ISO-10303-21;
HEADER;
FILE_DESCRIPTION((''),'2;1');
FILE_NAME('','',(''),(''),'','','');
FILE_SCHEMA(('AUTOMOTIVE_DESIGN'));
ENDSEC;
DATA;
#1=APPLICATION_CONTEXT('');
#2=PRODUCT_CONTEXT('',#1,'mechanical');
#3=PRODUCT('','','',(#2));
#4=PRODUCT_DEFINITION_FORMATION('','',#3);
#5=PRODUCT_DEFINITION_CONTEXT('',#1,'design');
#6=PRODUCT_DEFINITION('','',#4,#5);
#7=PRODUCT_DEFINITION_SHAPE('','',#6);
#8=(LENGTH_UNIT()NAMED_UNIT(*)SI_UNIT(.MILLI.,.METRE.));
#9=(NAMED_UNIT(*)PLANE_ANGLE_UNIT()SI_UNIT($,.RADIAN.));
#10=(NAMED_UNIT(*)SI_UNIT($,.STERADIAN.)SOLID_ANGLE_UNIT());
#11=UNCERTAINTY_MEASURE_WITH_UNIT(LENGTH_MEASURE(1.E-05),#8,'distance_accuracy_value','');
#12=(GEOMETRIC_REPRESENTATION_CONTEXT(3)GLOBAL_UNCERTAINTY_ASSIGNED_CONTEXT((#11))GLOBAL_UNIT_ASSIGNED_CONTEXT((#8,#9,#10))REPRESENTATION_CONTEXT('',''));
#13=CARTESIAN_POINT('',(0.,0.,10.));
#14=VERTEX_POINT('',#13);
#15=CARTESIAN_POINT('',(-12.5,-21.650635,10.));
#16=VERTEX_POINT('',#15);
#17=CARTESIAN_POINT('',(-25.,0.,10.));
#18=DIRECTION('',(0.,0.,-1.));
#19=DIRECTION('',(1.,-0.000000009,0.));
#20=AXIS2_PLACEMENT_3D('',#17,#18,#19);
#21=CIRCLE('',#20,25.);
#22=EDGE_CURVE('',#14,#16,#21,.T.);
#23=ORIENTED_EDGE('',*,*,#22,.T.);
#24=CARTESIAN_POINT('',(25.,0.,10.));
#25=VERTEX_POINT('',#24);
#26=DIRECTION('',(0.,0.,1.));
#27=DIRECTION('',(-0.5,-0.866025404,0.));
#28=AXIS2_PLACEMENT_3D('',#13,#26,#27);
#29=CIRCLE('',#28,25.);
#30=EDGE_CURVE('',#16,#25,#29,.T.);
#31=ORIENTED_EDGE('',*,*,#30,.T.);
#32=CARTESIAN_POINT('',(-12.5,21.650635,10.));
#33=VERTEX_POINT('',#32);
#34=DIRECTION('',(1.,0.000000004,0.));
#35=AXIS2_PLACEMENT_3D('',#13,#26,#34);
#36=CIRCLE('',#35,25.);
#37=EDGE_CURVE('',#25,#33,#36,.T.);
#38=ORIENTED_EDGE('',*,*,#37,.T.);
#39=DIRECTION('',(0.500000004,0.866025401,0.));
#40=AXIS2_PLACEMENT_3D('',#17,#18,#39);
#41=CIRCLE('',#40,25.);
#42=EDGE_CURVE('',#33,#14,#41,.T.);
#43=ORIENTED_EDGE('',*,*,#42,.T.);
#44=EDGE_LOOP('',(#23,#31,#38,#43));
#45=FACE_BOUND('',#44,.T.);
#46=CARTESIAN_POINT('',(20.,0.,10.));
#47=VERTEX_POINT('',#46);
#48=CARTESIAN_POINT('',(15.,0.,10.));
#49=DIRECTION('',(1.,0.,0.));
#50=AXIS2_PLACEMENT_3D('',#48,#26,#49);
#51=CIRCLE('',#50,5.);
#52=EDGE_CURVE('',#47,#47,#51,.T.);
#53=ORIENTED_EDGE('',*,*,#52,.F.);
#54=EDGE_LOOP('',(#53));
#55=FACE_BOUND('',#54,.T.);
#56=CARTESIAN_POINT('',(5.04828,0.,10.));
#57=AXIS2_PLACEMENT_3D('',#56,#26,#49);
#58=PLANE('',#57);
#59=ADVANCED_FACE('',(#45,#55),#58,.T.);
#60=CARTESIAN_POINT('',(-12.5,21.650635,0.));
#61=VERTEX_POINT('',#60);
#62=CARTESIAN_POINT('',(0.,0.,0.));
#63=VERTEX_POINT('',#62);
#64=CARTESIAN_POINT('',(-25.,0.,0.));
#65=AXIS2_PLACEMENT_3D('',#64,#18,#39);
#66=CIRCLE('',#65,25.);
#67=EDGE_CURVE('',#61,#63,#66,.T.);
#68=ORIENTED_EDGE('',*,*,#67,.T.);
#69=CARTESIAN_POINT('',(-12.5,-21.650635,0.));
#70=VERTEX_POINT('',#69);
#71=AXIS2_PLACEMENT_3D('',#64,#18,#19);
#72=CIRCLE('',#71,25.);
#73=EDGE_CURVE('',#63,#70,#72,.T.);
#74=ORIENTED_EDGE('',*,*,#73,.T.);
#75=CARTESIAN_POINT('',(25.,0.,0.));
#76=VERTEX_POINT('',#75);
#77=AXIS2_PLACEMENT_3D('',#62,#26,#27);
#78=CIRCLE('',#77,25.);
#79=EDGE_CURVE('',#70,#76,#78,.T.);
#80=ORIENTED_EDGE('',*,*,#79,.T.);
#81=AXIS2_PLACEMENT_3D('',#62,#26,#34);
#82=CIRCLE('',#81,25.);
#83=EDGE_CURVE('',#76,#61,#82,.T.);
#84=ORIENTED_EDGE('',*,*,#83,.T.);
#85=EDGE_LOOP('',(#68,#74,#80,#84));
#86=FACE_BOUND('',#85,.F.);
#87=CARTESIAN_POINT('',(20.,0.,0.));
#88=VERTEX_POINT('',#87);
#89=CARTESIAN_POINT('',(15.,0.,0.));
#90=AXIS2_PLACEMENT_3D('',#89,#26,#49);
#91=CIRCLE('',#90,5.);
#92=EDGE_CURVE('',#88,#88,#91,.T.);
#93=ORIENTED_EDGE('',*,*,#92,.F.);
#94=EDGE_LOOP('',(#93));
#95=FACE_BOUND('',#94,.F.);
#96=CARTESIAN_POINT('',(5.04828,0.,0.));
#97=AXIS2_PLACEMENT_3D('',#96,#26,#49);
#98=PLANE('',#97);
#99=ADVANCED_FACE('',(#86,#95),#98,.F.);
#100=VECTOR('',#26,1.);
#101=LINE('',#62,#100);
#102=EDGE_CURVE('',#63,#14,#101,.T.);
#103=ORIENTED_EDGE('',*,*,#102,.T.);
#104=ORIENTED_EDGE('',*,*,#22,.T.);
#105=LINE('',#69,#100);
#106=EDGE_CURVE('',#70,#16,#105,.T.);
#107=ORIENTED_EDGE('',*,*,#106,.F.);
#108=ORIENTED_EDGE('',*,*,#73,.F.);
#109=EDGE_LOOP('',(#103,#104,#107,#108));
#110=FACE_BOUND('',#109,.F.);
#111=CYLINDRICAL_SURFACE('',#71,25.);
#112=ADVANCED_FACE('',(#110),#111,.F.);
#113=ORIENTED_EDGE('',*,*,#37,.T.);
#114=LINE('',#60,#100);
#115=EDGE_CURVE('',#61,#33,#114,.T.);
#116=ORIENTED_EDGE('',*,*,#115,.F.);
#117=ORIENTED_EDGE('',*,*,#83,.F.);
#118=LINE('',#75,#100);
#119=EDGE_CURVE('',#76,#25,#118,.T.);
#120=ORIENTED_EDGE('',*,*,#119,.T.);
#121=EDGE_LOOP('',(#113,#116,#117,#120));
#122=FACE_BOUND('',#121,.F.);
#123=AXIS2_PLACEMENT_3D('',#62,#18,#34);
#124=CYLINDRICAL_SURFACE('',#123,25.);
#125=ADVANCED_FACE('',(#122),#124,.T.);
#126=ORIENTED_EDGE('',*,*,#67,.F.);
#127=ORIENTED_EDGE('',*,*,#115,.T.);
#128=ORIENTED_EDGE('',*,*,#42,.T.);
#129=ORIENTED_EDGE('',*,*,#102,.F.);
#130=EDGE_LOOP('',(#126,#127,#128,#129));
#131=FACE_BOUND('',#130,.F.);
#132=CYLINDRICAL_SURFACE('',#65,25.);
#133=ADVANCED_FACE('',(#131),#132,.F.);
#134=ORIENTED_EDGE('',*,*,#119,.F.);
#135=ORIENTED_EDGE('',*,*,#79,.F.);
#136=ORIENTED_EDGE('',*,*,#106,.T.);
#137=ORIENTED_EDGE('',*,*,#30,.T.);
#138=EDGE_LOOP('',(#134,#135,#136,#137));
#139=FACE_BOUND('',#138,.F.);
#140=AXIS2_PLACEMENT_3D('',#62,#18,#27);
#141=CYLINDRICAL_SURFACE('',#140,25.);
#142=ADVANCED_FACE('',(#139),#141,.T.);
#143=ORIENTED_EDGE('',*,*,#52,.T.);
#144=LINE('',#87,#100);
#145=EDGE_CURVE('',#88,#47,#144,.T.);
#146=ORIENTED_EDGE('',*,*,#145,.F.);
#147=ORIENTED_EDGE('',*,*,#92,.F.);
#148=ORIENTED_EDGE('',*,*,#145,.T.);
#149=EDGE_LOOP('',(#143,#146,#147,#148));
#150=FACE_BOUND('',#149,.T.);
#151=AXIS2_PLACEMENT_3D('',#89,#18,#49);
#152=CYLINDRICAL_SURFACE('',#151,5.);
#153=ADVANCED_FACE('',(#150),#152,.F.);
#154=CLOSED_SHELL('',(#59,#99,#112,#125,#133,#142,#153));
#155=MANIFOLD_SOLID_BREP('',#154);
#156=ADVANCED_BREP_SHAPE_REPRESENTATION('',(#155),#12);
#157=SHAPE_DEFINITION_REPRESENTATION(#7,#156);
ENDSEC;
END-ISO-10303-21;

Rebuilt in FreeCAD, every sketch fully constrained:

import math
import FreeCAD as App
import Part
import Sketcher
from FreeCAD import Vector
Q = App.Units.Quantity

doc = App.newDocument("Part")
body = doc.addObject("PartDesign::Body", "Body")

# Sketch on XY plane
sketch1 = body.newObject("Sketcher::SketchObject", "Sketch")
sketch1.AttachmentSupport = (doc.getObject("XY_Plane"), [""])
sketch1.MapMode = "FlatFace"
sketch1.addGeometry([
    Part.ArcOfCircle(Part.Circle(Vector(0, 0, 0), Vector(0, 0, 1), 25), math.radians(-120), math.radians(0)),  # 0
    Part.ArcOfCircle(Part.Circle(Vector(0, 0, 0), Vector(0, 0, 1), 25), math.radians(0), math.radians(120)),  # 1
    Part.ArcOfCircle(Part.Circle(Vector(-25, 0, 0), Vector(0, 0, 1), 25), math.radians(0), math.radians(60)),  # 2
    Part.ArcOfCircle(Part.Circle(Vector(-25, 0, 0), Vector(0, 0, 1), 25), math.radians(-60), math.radians(0)),  # 3
    Part.Circle(Vector(15, 0, 0), Vector(0, 0, 1), 5),  # 4
], False)
sketch1.addConstraint([
    Sketcher.Constraint("Tangent", 0, 2, 1, 1),
    Sketcher.Constraint("Coincident", 1, 2, 2, 2),
    Sketcher.Constraint("Tangent", 2, 1, 3, 2),
    Sketcher.Constraint("Coincident", 3, 1, 0, 1),
    Sketcher.Constraint("Coincident", 0, 3, -1, 1),
    Sketcher.Constraint("Coincident", 2, 1, -1, 1),
    Sketcher.Constraint("Equal", 0, 1),
    Sketcher.Constraint("Equal", 1, 2),
    Sketcher.Constraint("Equal", 2, 3),
    Sketcher.Constraint("PointOnObject", 2, 3, -1),
    Sketcher.Constraint("PointOnObject", 4, 3, -1),
    Sketcher.Constraint("PointOnObject", 0, 2, -1),
    Sketcher.Constraint("Diameter", 4, Q("10 mm")),
    Sketcher.Constraint("Radius", 0, Q("25 mm")),
    Sketcher.Constraint("DistanceX", -1, 1, 4, 3, Q("15 mm")),
])
pad1 = body.newObject("PartDesign::Pad", "Pad")
pad1.Profile = sketch1
pad1.Length = 10

doc.recompute()
